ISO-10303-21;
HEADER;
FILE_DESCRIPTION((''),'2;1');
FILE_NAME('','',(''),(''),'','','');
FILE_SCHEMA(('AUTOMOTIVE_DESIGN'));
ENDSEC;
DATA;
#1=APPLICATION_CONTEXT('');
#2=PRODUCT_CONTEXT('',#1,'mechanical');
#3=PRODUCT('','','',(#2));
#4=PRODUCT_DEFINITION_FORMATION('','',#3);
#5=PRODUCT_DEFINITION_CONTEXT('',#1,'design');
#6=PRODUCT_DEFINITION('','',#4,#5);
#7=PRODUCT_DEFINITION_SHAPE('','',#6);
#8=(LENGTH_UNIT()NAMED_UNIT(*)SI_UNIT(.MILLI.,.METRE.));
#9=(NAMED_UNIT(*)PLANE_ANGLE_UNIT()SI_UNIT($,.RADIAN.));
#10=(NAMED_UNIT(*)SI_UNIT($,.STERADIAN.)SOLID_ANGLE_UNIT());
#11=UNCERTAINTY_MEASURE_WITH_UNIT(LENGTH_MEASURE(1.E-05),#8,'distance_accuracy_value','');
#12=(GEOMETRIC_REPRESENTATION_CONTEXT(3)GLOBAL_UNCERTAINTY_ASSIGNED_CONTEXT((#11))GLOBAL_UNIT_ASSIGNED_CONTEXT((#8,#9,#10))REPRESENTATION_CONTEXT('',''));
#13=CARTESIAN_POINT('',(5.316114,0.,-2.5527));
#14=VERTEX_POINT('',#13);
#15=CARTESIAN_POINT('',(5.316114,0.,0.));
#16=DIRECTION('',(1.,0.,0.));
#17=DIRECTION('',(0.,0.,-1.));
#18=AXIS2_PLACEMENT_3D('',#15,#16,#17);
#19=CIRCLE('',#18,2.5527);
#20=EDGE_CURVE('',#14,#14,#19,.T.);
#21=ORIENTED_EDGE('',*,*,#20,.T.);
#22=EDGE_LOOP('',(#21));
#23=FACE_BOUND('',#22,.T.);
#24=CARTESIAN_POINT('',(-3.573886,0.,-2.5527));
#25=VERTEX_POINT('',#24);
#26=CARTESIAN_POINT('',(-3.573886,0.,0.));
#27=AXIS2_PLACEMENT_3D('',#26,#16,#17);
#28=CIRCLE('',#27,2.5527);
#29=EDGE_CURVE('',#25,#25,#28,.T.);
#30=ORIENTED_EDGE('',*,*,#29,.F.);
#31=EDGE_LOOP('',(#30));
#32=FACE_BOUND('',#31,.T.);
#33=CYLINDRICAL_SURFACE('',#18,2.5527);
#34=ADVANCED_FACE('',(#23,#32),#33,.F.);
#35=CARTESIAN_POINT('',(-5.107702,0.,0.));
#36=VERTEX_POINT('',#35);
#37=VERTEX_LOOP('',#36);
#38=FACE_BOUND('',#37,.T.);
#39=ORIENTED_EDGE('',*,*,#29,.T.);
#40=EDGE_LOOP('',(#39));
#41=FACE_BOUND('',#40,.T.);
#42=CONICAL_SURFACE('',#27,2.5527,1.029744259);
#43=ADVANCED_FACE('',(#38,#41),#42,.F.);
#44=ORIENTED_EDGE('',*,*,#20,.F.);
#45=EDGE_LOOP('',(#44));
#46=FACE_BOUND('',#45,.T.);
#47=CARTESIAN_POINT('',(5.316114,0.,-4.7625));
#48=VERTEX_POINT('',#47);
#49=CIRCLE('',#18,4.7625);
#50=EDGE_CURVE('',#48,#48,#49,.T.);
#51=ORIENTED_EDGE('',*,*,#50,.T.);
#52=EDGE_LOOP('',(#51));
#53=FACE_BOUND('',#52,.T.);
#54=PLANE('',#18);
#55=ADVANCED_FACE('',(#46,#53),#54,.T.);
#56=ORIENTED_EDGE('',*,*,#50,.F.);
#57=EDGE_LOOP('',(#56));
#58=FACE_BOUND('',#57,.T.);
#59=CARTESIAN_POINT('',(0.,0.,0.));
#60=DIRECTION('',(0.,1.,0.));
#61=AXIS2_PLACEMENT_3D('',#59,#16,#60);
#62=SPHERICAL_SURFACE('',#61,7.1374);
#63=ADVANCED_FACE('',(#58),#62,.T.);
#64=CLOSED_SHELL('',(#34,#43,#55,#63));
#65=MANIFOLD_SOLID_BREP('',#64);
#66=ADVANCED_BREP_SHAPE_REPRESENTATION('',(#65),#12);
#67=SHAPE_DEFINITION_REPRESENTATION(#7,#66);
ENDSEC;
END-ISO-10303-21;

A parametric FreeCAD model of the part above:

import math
import FreeCAD as App
import Part
import Sketcher
Q = App.Units.Quantity

doc = App.newDocument("Part")
body = doc.addObject("PartDesign::Body", "Body")

sketch1 = body.newObject("Sketcher::SketchObject", "Sketch")
sketch1.AttachmentSupport = (doc.getObject("XY_Plane"), [""])
sketch1.MapMode = "FlatFace"
sketch1.addGeometry([
    Part.LineSegment(App.Vector(-7.1, 0, 0), App.Vector(5.3, 0, 0)),
    Part.LineSegment(App.Vector(5.3, 0, 0), App.Vector(5.3, 4.8, 0)),
    Part.ArcOfCircle(Part.Circle(App.Vector(0, 0, 0), App.Vector(0, 0, 1), 7.1), math.radians(42), math.radians(180)),
], False)
sketch1.addConstraint([
    Sketcher.Constraint("Coincident", 0, 2, 1, 1),
    Sketcher.Constraint("Coincident", 1, 2, 2, 1),
    Sketcher.Constraint("Coincident", 2, 2, 0, 1),
    Sketcher.Constraint("Horizontal", 0),
    Sketcher.Constraint("Vertical", 1),
    Sketcher.Constraint("Coincident", 2, 3, -1, 1),
    Sketcher.Constraint("PointOnObject", 0, 2, -1),
    Sketcher.Constraint("Radius", 2, Q("0.281 in")),
    Sketcher.Constraint("DistanceY", 1, 1, 1, 2, Q("0.1875 in")),
])
revolution = body.newObject("PartDesign::Revolution", "Revolution")
revolution.Profile = sketch1
revolution.ReferenceAxis = (sketch1, ["H_Axis"])
revolution.Angle = 360

sketch2 = body.newObject("Sketcher::SketchObject", "Sketch001")
sketch2.AttachmentSupport = (doc.getObject("YZ_Plane"), [""])
sketch2.MapMode = "FlatFace"
sketch2.AttachmentOffset = App.Placement(App.Vector(0, 0, 5.316114), App.Rotation())
sketch2.addGeometry(Part.Circle(App.Vector(0, 0, 0), App.Vector(0, 0, 1), 2.6), False)
sketch2.addConstraint([
    Sketcher.Constraint("Coincident", 0, 3, -1, 1),
    Sketcher.Constraint("Diameter", 0, Q("0.201 in")),
])
doc.recompute()
hole = body.newObject("PartDesign::Hole", "Hole")
hole.Profile = sketch2
hole.ThreadType = "None"
hole.Diameter = Q("0.201 in")
hole.DepthType = "Dimension"
hole.Depth = Q("0.35 in")
hole.DrillPoint = "Angled"
hole.DrillPointAngle = 118

doc.recompute()
